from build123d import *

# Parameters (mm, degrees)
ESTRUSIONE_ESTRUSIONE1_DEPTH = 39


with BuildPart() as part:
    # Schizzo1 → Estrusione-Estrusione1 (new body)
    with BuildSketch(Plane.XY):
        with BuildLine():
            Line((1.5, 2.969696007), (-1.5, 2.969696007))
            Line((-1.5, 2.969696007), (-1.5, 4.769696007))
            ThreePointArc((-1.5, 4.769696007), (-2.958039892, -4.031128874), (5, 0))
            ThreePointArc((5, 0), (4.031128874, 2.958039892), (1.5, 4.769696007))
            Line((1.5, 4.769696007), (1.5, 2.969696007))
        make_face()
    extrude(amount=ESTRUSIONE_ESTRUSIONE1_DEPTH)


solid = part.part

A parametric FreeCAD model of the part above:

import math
import FreeCAD as App
import Part
import Sketcher
Q = App.Units.Quantity

doc = App.newDocument("Part")
params = doc.addObject("Spreadsheet::Sheet", "Params")
for row, (alias, value) in enumerate([
    ("sketch1_radius", "5 mm"),
    ("sketch1_width", "3 mm"),
    ("sketch1_height", "1.8 mm"),
    ("pad1_length", "39 mm"),
], start=1):
    params.set(f"A{row}", alias)
    params.set(f"B{row}", "=" + value)
    params.setAlias(f"B{row}", alias)

body = doc.addObject("PartDesign::Body", "Body")

sketch1 = body.newObject("Sketcher::SketchObject", "Sketch")
sketch1.AttachmentSupport = (doc.getObject("XY_Plane"), [""])
sketch1.MapMode = "FlatFace"
sketch1.addGeometry(Part.LineSegment(App.Vector(1.5, 3, 0), App.Vector(-1.5, 3, 0)), False)
sketch1.addGeometry(Part.LineSegment(App.Vector(-1.5, 3, 0), App.Vector(-1.5, 4.8, 0)), False)
sketch1.addGeometry(Part.ArcOfCircle(Part.Circle(App.Vector(0, 0, 0), App.Vector(0, 0, 1), 5), math.radians(107), math.radians(360)), False)
sketch1.addGeometry(Part.ArcOfCircle(Part.Circle(App.Vector(0, 0, 0), App.Vector(0, 0, 1), 5), math.radians(0), math.radians(73)), False)
sketch1.addGeometry(Part.LineSegment(App.Vector(1.5, 4.8, 0), App.Vector(1.5, 3, 0)), False)
sketch1.addConstraint(Sketcher.Constraint("Coincident", 0, 2, 1, 1))
sketch1.addConstraint(Sketcher.Constraint("Coincident", 1, 2, 2, 1))
sketch1.addConstraint(Sketcher.Constraint("Tangent", 2, 2, 3, 1))
sketch1.addConstraint(Sketcher.Constraint("Coincident", 3, 2, 4, 1))
sketch1.addConstraint(Sketcher.Constraint("Coincident", 4, 2, 0, 1))
sketch1.addConstraint(Sketcher.Constraint("Horizontal", 0))
sketch1.addConstraint(Sketcher.Constraint("Vertical", 1))
sketch1.addConstraint(Sketcher.Constraint("Vertical", 4))
sketch1.addConstraint(Sketcher.Constraint("Coincident", 2, 3, -1, 1))
sketch1.addConstraint(Sketcher.Constraint("Equal", 2, 3))
sketch1.addConstraint(Sketcher.Constraint("PointOnObject", 2, 2, -1))
sketch1.addConstraint(Sketcher.Constraint("Horizontal", 1, 2, 3, 2))
sketch1.addConstraint(Sketcher.Constraint("Radius", 2, Q("5 mm")))
sketch1.addConstraint(Sketcher.Constraint("DistanceX", 0, 2, 0, 1, Q("3 mm")))
sketch1.addConstraint(Sketcher.Constraint("DistanceY", 1, 1, 1, 2, Q("1.8 mm")))
sketch1.setExpression("Constraints[12]", "Params.sketch1_radius")
sketch1.setExpression("Constraints[13]", "Params.sketch1_width")
sketch1.setExpression("Constraints[14]", "Params.sketch1_height")
pad1 = body.newObject("PartDesign::Pad", "Pad")
pad1.Profile = sketch1
pad1.setExpression("Length", "Params.pad1_length")

doc.recompute()
